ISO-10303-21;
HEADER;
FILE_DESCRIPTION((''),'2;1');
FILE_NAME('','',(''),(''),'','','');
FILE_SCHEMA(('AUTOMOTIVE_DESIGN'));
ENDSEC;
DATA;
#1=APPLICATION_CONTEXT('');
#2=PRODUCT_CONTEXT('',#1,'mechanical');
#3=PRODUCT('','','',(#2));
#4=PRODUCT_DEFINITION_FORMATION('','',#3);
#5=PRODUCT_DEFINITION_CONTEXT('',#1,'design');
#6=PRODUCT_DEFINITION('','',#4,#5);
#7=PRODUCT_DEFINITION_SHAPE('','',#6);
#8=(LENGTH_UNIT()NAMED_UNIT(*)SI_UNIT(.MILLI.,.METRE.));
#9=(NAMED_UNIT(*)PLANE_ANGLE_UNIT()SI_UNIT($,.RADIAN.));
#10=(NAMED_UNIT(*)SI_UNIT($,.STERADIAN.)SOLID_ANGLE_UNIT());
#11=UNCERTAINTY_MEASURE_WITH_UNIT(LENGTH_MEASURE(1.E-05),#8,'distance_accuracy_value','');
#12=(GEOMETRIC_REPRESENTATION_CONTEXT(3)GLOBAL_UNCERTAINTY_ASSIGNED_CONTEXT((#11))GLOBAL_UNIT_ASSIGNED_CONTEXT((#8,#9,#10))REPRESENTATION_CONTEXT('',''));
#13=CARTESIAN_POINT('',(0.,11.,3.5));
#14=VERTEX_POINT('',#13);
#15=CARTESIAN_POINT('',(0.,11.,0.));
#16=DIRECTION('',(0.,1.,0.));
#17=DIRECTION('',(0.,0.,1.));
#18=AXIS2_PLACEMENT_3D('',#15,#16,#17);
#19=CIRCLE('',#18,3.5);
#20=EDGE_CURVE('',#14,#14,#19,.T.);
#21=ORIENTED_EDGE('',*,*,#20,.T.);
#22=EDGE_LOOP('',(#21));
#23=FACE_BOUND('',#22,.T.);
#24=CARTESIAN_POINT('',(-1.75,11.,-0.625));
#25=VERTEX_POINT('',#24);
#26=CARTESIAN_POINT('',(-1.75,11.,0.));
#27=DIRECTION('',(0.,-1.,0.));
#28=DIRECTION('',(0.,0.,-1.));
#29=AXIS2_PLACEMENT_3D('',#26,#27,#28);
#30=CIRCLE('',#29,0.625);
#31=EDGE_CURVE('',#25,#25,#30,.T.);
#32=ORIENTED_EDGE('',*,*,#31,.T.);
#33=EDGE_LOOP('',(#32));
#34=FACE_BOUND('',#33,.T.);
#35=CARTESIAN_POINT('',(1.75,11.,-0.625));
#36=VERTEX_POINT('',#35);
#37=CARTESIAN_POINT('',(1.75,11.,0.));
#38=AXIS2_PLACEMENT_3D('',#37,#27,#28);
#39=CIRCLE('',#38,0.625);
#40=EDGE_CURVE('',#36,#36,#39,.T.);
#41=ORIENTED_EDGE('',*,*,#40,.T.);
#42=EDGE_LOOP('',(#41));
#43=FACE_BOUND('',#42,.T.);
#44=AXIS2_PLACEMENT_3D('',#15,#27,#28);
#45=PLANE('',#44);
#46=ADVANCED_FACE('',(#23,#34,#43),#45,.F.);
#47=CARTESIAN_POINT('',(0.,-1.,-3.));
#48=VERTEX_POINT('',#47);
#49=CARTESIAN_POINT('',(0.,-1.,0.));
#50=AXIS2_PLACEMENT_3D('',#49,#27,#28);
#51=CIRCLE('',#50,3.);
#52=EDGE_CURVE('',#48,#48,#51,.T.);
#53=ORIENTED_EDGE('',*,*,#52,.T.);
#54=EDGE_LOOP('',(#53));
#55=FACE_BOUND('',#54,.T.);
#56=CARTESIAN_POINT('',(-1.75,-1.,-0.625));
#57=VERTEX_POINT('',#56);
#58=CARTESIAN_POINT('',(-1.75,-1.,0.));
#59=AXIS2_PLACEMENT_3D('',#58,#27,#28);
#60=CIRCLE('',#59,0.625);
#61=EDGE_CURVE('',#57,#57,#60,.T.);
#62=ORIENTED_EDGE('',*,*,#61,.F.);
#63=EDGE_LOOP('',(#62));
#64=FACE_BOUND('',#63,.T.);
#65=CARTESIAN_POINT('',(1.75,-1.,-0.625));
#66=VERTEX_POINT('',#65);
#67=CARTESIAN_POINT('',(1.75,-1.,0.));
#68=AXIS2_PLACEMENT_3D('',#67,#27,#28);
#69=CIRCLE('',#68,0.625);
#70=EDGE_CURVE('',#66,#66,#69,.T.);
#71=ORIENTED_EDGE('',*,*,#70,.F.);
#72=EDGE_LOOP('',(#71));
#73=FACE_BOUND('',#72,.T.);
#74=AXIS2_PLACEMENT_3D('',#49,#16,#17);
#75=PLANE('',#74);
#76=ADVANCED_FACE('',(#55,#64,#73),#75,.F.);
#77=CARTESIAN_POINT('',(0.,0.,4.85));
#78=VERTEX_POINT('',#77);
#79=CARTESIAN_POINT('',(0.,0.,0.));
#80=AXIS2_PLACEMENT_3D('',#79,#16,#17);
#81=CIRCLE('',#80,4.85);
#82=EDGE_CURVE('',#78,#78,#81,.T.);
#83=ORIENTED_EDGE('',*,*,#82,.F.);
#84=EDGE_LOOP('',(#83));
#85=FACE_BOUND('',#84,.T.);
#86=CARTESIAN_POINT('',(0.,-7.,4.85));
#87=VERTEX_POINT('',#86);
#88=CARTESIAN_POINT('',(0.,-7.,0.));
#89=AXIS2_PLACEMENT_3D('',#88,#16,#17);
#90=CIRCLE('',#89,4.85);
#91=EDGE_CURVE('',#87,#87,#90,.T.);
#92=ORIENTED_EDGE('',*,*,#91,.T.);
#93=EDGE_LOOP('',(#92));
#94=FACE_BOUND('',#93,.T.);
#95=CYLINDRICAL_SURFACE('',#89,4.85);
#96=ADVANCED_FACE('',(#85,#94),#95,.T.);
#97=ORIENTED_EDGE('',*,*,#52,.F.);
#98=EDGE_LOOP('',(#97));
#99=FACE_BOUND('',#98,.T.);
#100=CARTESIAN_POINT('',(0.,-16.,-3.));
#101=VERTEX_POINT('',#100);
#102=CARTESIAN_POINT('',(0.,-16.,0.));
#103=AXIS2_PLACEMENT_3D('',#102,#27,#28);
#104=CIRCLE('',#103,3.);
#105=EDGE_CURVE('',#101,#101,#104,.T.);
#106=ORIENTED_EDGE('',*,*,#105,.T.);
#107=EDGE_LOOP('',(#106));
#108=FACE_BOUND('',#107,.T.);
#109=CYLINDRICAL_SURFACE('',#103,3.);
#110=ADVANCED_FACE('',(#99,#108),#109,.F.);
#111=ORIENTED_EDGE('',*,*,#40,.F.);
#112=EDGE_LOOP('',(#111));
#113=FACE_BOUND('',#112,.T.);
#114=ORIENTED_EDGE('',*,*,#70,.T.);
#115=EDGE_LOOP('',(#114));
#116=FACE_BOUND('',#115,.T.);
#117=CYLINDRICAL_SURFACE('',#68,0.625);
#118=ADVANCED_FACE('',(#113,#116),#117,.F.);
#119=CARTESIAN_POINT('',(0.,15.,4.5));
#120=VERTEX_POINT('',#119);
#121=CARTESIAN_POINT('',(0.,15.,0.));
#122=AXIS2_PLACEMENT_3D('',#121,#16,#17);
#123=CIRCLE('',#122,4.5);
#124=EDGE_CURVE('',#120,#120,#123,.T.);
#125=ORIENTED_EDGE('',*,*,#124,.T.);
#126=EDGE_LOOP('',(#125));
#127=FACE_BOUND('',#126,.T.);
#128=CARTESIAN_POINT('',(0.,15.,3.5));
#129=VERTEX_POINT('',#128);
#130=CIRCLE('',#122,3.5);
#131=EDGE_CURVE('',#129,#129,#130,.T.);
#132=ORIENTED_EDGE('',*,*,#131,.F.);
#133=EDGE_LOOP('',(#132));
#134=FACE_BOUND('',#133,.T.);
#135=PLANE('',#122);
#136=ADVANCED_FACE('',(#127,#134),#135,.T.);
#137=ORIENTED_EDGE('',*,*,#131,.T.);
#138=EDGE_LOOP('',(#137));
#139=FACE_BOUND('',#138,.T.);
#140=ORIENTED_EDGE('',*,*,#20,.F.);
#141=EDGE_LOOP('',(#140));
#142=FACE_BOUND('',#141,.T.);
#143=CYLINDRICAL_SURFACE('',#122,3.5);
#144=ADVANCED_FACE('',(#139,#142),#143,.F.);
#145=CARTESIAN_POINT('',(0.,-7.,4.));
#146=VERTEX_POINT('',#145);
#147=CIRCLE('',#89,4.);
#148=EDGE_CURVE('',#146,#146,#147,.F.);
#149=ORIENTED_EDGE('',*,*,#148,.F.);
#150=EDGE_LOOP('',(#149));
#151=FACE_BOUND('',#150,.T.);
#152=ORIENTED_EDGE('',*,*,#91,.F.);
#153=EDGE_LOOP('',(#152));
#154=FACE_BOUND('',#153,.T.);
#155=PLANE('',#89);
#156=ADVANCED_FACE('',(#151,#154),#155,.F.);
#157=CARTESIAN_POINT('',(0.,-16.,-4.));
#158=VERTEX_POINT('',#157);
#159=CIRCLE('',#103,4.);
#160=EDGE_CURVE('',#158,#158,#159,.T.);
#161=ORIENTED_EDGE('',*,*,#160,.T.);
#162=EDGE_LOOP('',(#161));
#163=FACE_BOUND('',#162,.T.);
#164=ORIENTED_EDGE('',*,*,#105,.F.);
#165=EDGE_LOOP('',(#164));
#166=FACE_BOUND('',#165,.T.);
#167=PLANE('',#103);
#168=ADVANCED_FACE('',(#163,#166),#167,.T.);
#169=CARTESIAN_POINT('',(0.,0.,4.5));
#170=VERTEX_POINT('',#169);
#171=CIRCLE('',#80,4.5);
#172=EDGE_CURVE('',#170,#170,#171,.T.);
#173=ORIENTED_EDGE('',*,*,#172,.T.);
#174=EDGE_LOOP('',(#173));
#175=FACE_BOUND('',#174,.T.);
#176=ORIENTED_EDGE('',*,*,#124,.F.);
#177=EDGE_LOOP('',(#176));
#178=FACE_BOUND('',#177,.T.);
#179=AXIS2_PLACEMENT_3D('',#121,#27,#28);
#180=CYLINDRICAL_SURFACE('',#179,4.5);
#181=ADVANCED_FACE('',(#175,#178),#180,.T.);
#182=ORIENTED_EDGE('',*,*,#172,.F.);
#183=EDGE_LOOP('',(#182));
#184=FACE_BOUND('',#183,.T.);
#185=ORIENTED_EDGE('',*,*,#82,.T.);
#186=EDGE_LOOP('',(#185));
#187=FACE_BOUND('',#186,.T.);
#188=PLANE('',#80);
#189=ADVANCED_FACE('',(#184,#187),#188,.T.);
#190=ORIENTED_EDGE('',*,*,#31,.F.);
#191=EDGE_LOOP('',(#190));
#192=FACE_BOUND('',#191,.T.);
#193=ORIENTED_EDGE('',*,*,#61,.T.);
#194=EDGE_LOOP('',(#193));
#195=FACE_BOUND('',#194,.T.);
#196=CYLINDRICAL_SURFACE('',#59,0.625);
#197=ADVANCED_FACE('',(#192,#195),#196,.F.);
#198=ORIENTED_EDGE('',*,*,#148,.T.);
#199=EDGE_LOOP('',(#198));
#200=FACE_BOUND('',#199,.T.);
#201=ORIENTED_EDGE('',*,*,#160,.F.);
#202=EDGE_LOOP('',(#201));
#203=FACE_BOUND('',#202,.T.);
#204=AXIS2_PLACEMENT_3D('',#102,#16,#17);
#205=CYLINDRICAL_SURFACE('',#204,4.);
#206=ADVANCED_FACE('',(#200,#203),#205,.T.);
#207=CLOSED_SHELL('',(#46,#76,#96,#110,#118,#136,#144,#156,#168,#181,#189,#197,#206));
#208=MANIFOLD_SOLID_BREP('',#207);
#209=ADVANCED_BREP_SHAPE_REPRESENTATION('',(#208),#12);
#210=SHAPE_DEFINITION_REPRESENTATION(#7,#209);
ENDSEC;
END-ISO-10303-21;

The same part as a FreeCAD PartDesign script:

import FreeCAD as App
import Part
import Sketcher

doc = App.newDocument("Part")
body = doc.addObject("PartDesign::Body", "Body")

sketch1 = body.newObject("Sketcher::SketchObject", "Sketch")
sketch1.AttachmentSupport = (doc.getObject("XZ_Plane"), [""])
sketch1.MapMode = "FlatFace"
sketch1.addGeometry(Part.Circle(App.Vector(0, 0, 0), App.Vector(0, 0, 1), 4.5), False)
sketch1.addConstraint(Sketcher.Constraint("Coincident", 0, 3, -1, 1))
sketch1.addConstraint(Sketcher.Constraint("Diameter", 0, 9.0))
pad1 = body.newObject("PartDesign::Pad", "Pad")
pad1.Profile = sketch1
pad1.Length = 15
pad1.Reversed = True

sketch2 = body.newObject("Sketcher::SketchObject", "Sketch001")
sketch2.AttachmentSupport = (doc.getObject("XZ_Plane"), [""])
sketch2.MapMode = "FlatFace"
sketch2.AttachmentOffset = App.Placement(App.Vector(0, 0, -15), App.Rotation())
sketch2.addGeometry(Part.Circle(App.Vector(0, 0, 0), App.Vector(0, 0, 1), 3.5), False)
sketch2.addConstraint(Sketcher.Constraint("Coincident", 0, 3, -1, 1))
sketch2.addConstraint(Sketcher.Constraint("Diameter", 0, 7.0))
doc.recompute()
hole = body.newObject("PartDesign::Hole", "Hole")
hole.Profile = sketch2
hole.ThreadType = "None"
hole.Diameter = 7
hole.DepthType = "Dimension"
hole.Depth = 4
hole.DrillPoint = "Flat"
hole.Reversed = True

sketch3 = body.newObject("Sketcher::SketchObject", "Sketch002")
sketch3.AttachmentSupport = (doc.getObject("XZ_Plane"), [""])
sketch3.MapMode = "FlatFace"
sketch3.addGeometry(Part.Circle(App.Vector(0, 0, 0), App.Vector(0, 0, 1), 4.8), False)
sketch3.addConstraint(Sketcher.Constraint("Coincident", 0, 3, -1, 1))
sketch3.addConstraint(Sketcher.Constraint("Diameter", 0, 9.7))
pad2 = body.newObject("PartDesign::Pad", "Pad001")
pad2.Profile = sketch3
pad2.Length = 7

sketch4 = body.newObject("Sketcher::SketchObject", "Sketch003")
sketch4.AttachmentSupport = (doc.getObject("XZ_Plane"), [""])
sketch4.MapMode = "FlatFace"
sketch4.AttachmentOffset = App.Placement(App.Vector(0, 0, 7), App.Rotation())
sketch4.addGeometry(Part.Circle(App.Vector(0, 0, 0), App.Vector(0, 0, 1), 4), False)
sketch4.addConstraint(Sketcher.Constraint("Coincident", 0, 3, -1, 1))
sketch4.addConstraint(Sketcher.Constraint("Diameter", 0, 8.0))
pad3 = body.newObject("PartDesign::Pad", "Pad002")
pad3.Profile = sketch4
pad3.Length = 9

sketch5 = body.newObject("Sketcher::SketchObject", "Sketch004")
sketch5.AttachmentSupport = (doc.getObject("XZ_Plane"), [""])
sketch5.MapMode = "FlatFace"
sketch5.AttachmentOffset = App.Placement(App.Vector(0, 0, 16), App.Rotation())
sketch5.addGeometry(Part.Circle(App.Vector(0, 0, 0), App.Vector(0, 0, 1), 3), False)
sketch5.addConstraint(Sketcher.Constraint("Coincident", 0, 3, -1, 1))
sketch5.addConstraint(Sketcher.Constraint("Diameter", 0, 6.0))
doc.recompute()
hole2 = body.newObject("PartDesign::Hole", "Hole001")
hole2.Profile = sketch5
hole2.ThreadType = "None"
hole2.Diameter = 6
hole2.DepthType = "Dimension"
hole2.Depth = 15
hole2.DrillPoint = "Flat"

sketch6 = body.newObject("Sketcher::SketchObject", "Sketch005")
sketch6.AttachmentSupport = (doc.getObject("XZ_Plane"), [""])
sketch6.MapMode = "FlatFace"
sketch6.AttachmentOffset = App.Placement(App.Vector(0, 0, 1), App.Rotation())
sketch6.addGeometry(Part.Circle(App.Vector(-1.8, 0, 0), App.Vector(0, 0, 1), 0.6), False)
sketch6.addGeometry(Part.Circle(App.Vector(1.8, 0, 0), App.Vector(0, 0, 1), 0.6), False)
sketch6.addConstraint(Sketcher.Constraint("Equal", 0, 1))
sketch6.addConstraint(Sketcher.Constraint("Symmetric", 0, 3, 1, 3, -1, 1))
sketch6.addConstraint(Sketcher.Constraint("PointOnObject", 0, 3, -1))
sketch6.addConstraint(Sketcher.Constraint("Diameter", 0, 1.25))
sketch6.addConstraint(Sketcher.Constraint("DistanceX", 0, 3, 1, 3, 3.5))
doc.recompute()
hole3 = body.newObject("PartDesign::Hole", "Hole002")
hole3.Profile = sketch6
hole3.ThreadType = "None"
hole3.Diameter = 1.25
hole3.DepthType = "Dimension"
hole3.Depth = 41
hole3.DrillPoint = "Flat"

doc.recompute()
